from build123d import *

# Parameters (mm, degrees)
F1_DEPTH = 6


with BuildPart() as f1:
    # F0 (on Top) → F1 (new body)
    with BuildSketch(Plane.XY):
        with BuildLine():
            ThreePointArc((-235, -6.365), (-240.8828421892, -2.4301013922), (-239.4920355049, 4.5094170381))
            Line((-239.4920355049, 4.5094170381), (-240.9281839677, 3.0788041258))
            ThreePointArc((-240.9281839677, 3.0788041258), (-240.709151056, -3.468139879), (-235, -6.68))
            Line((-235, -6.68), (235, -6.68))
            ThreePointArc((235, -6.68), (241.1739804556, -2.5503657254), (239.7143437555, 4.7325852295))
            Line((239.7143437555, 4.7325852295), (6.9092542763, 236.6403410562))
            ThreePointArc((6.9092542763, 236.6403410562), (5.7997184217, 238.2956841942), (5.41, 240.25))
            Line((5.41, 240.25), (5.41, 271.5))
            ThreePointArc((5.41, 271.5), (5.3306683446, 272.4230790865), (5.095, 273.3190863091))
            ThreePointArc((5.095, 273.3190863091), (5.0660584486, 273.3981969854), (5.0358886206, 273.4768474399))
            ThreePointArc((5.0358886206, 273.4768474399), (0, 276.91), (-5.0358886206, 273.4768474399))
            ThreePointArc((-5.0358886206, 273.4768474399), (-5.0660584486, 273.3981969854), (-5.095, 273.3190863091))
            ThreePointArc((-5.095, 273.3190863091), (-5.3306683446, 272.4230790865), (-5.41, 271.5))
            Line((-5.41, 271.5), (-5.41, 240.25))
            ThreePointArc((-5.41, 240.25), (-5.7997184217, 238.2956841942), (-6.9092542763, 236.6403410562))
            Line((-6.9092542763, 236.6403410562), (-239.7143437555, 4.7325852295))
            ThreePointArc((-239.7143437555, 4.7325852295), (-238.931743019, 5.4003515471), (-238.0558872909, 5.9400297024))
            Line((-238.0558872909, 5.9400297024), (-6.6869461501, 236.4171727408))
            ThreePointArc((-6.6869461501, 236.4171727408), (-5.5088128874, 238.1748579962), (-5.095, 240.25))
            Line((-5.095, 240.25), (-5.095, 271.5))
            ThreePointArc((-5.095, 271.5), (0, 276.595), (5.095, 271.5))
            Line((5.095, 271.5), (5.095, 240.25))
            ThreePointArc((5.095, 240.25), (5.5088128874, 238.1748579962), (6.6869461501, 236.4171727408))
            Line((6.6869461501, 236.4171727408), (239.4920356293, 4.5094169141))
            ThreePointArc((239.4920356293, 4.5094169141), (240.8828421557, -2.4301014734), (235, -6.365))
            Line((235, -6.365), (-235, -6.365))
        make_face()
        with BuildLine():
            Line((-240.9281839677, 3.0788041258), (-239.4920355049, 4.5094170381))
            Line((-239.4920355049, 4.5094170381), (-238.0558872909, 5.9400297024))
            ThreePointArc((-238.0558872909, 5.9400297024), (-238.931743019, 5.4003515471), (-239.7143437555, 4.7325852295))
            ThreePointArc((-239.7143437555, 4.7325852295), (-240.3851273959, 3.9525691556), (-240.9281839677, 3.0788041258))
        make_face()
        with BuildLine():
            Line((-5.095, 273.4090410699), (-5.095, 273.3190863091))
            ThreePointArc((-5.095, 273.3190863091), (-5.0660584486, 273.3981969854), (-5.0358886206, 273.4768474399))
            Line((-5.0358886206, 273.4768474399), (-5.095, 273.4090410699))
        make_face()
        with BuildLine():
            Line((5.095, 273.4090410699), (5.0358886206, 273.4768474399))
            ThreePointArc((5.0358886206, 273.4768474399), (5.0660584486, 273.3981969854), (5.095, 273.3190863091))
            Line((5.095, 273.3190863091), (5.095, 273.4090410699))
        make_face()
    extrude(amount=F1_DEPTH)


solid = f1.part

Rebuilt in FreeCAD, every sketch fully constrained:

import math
import FreeCAD as App
import Part
import Sketcher
Q = App.Units.Quantity

doc = App.newDocument("Part")
params = doc.addObject("Spreadsheet::Sheet", "Params")
for row, (alias, value) in enumerate([
    ("sketch1_width", "470 mm"),
    ("sketch1_radius", "6.68 mm"),
    ("sketch1_radius2", "5.41 mm"),
    ("sketch1_height", "31.25 mm"),
    ("pad1_length", "6 mm"),
], start=1):
    params.set(f"A{row}", alias)
    params.set(f"B{row}", "=" + value)
    params.setAlias(f"B{row}", alias)

body = doc.addObject("PartDesign::Body", "Body")

sketch1 = body.newObject("Sketcher::SketchObject", "Sketch")
sketch1.AttachmentSupport = (doc.getObject("XY_Plane"), [""])
sketch1.MapMode = "FlatFace"
sketch1.addGeometry([
    Part.ArcOfCircle(Part.Circle(App.Vector(-235, 0, 0), App.Vector(0, 0, 1), 6.68), math.radians(153), math.radians(270)),
    Part.LineSegment(App.Vector(-235, -6.68, 0), App.Vector(235, -6.68, 0)),
    Part.ArcOfCircle(Part.Circle(App.Vector(235, 0, 0), App.Vector(0, 0, 1), 6.68), math.radians(-90), math.radians(45)),
    Part.LineSegment(App.Vector(239.71, 4.73, 0), App.Vector(6.91, 236.64, 0)),
    Part.ArcOfCircle(Part.Circle(App.Vector(10.51, 240.25, 0), App.Vector(0, 0, 1), 5.09), math.radians(180), math.radians(225)),
    Part.LineSegment(App.Vector(5.41, 240.25, 0), App.Vector(5.41, 271.5, 0)),
    Part.ArcOfCircle(Part.Circle(App.Vector(0, 271.5, 0), App.Vector(0, 0, 1), 5.41), math.radians(0), math.radians(19.65)),
    Part.LineSegment(App.Vector(5.09, 273.32, 0), App.Vector(5.09, 273.41, 0)),
    Part.LineSegment(App.Vector(5.09, 273.41, 0), App.Vector(5.04, 273.48, 0)),
    Part.ArcOfCircle(Part.Circle(App.Vector(0, 271.5, 0), App.Vector(0, 0, 1), 5.41), math.radians(21), math.radians(159)),
    Part.LineSegment(App.Vector(-5.04, 273.48, 0), App.Vector(-5.09, 273.41, 0)),
    Part.LineSegment(App.Vector(-5.09, 273.41, 0), App.Vector(-5.09, 273.32, 0)),
    Part.ArcOfCircle(Part.Circle(App.Vector(0, 271.5, 0), App.Vector(0, 0, 1), 5.41), math.radians(160.35), math.radians(180)),
    Part.LineSegment(App.Vector(-5.41, 271.5, 0), App.Vector(-5.41, 240.25, 0)),
    Part.ArcOfCircle(Part.Circle(App.Vector(-10.51, 240.25, 0), App.Vector(0, 0, 1), 5.09), math.radians(-45), math.radians(0)),
    Part.LineSegment(App.Vector(-6.91, 236.64, 0), App.Vector(-239.71, 4.73, 0)),
    Part.ArcOfCircle(Part.Circle(App.Vector(-235, 0, 0), App.Vector(0, 0, 1), 6.68), math.radians(134.89), math.radians(152.55)),
    Part.ArcOfCircle(Part.Circle(App.Vector(-235, 0, 0), App.Vector(0, 0, 1), 6.37), math.radians(135), math.radians(270)),
    Part.LineSegment(App.Vector(-239.49, 4.51, 0), App.Vector(-238.06, 5.94, 0)),
    Part.LineSegment(App.Vector(-238.06, 5.94, 0), App.Vector(-6.69, 236.42, 0)),
    Part.ArcOfCircle(Part.Circle(App.Vector(-10.51, 240.25, 0), App.Vector(0, 0, 1), 5.41), math.radians(-45), math.radians(0)),
    Part.LineSegment(App.Vector(-5.09, 240.25, 0), App.Vector(-5.09, 271.5, 0)),
    Part.ArcOfCircle(Part.Circle(App.Vector(0, 271.5, 0), App.Vector(0, 0, 1), 5.09), math.radians(0), math.radians(180)),
    Part.LineSegment(App.Vector(5.09, 271.5, 0), App.Vector(5.09, 240.25, 0)),
    Part.ArcOfCircle(Part.Circle(App.Vector(10.51, 240.25, 0), App.Vector(0, 0, 1), 5.41), math.radians(180), math.radians(225)),
    Part.LineSegment(App.Vector(6.69, 236.42, 0), App.Vector(239.49, 4.51, 0)),
    Part.ArcOfCircle(Part.Circle(App.Vector(235, 0, 0), App.Vector(0, 0, 1), 6.37), math.radians(-90), math.radians(45)),
    Part.LineSegment(App.Vector(235, -6.37, 0), App.Vector(-235, -6.37, 0)),
], False)
sketch1.addConstraint([
    Sketcher.Constraint("Tangent", 0, 2, 1, 1),
    Sketcher.Constraint("Tangent", 1, 2, 2, 1),
    Sketcher.Constraint("Tangent", 2, 2, 3, 1),
    Sketcher.Constraint("Tangent", 3, 2, 4, 2),
    Sketcher.Constraint("Tangent", 4, 1, 5, 1),
    Sketcher.Constraint("Tangent", 5, 2, 6, 1),
    Sketcher.Constraint("Coincident", 6, 2, 7, 1),
    Sketcher.Constraint("Coincident", 7, 2, 8, 1),
    Sketcher.Constraint("Coincident", 8, 2, 9, 1),
    Sketcher.Constraint("Coincident", 9, 2, 10, 1),
    Sketcher.Constraint("Coincident", 10, 2, 11, 1),
    Sketcher.Constraint("Coincident", 11, 2, 12, 1),
    Sketcher.Constraint("Tangent", 12, 2, 13, 1),
    Sketcher.Constraint("Tangent", 13, 2, 14, 2),
    Sketcher.Constraint("Tangent", 14, 1, 15, 1),
    Sketcher.Constraint("Tangent", 15, 2, 16, 1),
    Sketcher.Constraint("Tangent", 16, 2, 0, 1),
    Sketcher.Constraint("Tangent", 17, 1, 18, 1),
    Sketcher.Constraint("Coincident", 18, 2, 19, 1),
    Sketcher.Constraint("Tangent", 19, 2, 20, 1),
    Sketcher.Constraint("Tangent", 20, 2, 21, 1),
    Sketcher.Constraint("Tangent", 21, 2, 22, 2),
    Sketcher.Constraint("Tangent", 22, 1, 23, 1),
    Sketcher.Constraint("Tangent", 23, 2, 24, 1),
    Sketcher.Constraint("Tangent", 24, 2, 25, 1),
    Sketcher.Constraint("Tangent", 25, 2, 26, 2),
    Sketcher.Constraint("Tangent", 26, 1, 27, 1),
    Sketcher.Constraint("Tangent", 27, 2, 17, 2),
    Sketcher.Constraint("Horizontal", 1),
    Sketcher.Constraint("Vertical", 5),
    Sketcher.Constraint("Vertical", 7),
    Sketcher.Constraint("Vertical", 11),
    Sketcher.Constraint("Vertical", 13),
    Sketcher.Constraint("Vertical", 21),
    Sketcher.Constraint("Vertical", 23),
    Sketcher.Constraint("Horizontal", 27),
    Sketcher.Constraint("Coincident", 9, 3, 6, 3),
    Sketcher.Constraint("Coincident", 12, 3, 6, 3),
    Sketcher.Constraint("Coincident", 17, 3, 0, 3),
    Sketcher.Constraint("Coincident", 20, 3, 14, 3),
    Sketcher.Constraint("Coincident", 22, 3, 6, 3),
    Sketcher.Constraint("Coincident", 24, 3, 4, 3),
    Sketcher.Constraint("Coincident", 26, 3, 2, 3),
    Sketcher.Constraint("Equal", 0, 2),
    Sketcher.Constraint("Equal", 6, 9),
    Sketcher.Constraint("Equal", 9, 12),
    Sketcher.Constraint("Equal", 4, 14),
    Sketcher.Constraint("Equal", 2, 16),
    Sketcher.Constraint("Equal", 12, 20),
    Sketcher.Constraint("Symmetric", 0, 3, 2, 3, -1, 1),
    Sketcher.Constraint("Symmetric", 4, 3, 14, 3, -2),
    Sketcher.Constraint("Symmetric", 7, 2, 10, 2, -2),
    Sketcher.Constraint("Parallel", 15, 18),
    Sketcher.Constraint("Parallel", 18, 19),
    Sketcher.Constraint("Horizontal", 8, 2, 9, 2),
    Sketcher.Constraint("Vertical", 11, 2, 20, 2),
    Sketcher.Constraint("DistanceX", 1, 1, 1, 2, Q("470 mm")),
    Sketcher.Constraint("Radius", 0, Q("6.68 mm")),
    Sketcher.Constraint("Radius", 6, Q("5.41 mm")),
    Sketcher.Constraint("Radius", 4, Q("5.095 mm")),
    Sketcher.Constraint("DistanceY", 5, 1, 5, 2, Q("31.25 mm")),
    Sketcher.Constraint("DistanceY", -1, 1, 6, 3, Q("271.5 mm")),
    Sketcher.Constraint("Distance", 18, Q("2.02711 mm")),
    Sketcher.Constraint("DistanceY", 7, 1, 7, 2, Q("0.089955 mm")),
    Sketcher.Constraint("DistanceX", -1, 1, 8, 2, Q("5.035889 mm")),
    Sketcher.Constraint("DistanceX", 16, 2, 15, 2, Q("1.21384 mm")),
])
sketch1.setExpression("Constraints[56]", "Params.sketch1_width")
sketch1.setExpression("Constraints[57]", "Params.sketch1_radius")
sketch1.setExpression("Constraints[58]", "Params.sketch1_radius2")
sketch1.setExpression("Constraints[60]", "Params.sketch1_height")
pad1 = body.newObject("PartDesign::Pad", "Pad")
pad1.Profile = sketch1
pad1.setExpression("Length", "Params.pad1_length")

doc.recompute()
